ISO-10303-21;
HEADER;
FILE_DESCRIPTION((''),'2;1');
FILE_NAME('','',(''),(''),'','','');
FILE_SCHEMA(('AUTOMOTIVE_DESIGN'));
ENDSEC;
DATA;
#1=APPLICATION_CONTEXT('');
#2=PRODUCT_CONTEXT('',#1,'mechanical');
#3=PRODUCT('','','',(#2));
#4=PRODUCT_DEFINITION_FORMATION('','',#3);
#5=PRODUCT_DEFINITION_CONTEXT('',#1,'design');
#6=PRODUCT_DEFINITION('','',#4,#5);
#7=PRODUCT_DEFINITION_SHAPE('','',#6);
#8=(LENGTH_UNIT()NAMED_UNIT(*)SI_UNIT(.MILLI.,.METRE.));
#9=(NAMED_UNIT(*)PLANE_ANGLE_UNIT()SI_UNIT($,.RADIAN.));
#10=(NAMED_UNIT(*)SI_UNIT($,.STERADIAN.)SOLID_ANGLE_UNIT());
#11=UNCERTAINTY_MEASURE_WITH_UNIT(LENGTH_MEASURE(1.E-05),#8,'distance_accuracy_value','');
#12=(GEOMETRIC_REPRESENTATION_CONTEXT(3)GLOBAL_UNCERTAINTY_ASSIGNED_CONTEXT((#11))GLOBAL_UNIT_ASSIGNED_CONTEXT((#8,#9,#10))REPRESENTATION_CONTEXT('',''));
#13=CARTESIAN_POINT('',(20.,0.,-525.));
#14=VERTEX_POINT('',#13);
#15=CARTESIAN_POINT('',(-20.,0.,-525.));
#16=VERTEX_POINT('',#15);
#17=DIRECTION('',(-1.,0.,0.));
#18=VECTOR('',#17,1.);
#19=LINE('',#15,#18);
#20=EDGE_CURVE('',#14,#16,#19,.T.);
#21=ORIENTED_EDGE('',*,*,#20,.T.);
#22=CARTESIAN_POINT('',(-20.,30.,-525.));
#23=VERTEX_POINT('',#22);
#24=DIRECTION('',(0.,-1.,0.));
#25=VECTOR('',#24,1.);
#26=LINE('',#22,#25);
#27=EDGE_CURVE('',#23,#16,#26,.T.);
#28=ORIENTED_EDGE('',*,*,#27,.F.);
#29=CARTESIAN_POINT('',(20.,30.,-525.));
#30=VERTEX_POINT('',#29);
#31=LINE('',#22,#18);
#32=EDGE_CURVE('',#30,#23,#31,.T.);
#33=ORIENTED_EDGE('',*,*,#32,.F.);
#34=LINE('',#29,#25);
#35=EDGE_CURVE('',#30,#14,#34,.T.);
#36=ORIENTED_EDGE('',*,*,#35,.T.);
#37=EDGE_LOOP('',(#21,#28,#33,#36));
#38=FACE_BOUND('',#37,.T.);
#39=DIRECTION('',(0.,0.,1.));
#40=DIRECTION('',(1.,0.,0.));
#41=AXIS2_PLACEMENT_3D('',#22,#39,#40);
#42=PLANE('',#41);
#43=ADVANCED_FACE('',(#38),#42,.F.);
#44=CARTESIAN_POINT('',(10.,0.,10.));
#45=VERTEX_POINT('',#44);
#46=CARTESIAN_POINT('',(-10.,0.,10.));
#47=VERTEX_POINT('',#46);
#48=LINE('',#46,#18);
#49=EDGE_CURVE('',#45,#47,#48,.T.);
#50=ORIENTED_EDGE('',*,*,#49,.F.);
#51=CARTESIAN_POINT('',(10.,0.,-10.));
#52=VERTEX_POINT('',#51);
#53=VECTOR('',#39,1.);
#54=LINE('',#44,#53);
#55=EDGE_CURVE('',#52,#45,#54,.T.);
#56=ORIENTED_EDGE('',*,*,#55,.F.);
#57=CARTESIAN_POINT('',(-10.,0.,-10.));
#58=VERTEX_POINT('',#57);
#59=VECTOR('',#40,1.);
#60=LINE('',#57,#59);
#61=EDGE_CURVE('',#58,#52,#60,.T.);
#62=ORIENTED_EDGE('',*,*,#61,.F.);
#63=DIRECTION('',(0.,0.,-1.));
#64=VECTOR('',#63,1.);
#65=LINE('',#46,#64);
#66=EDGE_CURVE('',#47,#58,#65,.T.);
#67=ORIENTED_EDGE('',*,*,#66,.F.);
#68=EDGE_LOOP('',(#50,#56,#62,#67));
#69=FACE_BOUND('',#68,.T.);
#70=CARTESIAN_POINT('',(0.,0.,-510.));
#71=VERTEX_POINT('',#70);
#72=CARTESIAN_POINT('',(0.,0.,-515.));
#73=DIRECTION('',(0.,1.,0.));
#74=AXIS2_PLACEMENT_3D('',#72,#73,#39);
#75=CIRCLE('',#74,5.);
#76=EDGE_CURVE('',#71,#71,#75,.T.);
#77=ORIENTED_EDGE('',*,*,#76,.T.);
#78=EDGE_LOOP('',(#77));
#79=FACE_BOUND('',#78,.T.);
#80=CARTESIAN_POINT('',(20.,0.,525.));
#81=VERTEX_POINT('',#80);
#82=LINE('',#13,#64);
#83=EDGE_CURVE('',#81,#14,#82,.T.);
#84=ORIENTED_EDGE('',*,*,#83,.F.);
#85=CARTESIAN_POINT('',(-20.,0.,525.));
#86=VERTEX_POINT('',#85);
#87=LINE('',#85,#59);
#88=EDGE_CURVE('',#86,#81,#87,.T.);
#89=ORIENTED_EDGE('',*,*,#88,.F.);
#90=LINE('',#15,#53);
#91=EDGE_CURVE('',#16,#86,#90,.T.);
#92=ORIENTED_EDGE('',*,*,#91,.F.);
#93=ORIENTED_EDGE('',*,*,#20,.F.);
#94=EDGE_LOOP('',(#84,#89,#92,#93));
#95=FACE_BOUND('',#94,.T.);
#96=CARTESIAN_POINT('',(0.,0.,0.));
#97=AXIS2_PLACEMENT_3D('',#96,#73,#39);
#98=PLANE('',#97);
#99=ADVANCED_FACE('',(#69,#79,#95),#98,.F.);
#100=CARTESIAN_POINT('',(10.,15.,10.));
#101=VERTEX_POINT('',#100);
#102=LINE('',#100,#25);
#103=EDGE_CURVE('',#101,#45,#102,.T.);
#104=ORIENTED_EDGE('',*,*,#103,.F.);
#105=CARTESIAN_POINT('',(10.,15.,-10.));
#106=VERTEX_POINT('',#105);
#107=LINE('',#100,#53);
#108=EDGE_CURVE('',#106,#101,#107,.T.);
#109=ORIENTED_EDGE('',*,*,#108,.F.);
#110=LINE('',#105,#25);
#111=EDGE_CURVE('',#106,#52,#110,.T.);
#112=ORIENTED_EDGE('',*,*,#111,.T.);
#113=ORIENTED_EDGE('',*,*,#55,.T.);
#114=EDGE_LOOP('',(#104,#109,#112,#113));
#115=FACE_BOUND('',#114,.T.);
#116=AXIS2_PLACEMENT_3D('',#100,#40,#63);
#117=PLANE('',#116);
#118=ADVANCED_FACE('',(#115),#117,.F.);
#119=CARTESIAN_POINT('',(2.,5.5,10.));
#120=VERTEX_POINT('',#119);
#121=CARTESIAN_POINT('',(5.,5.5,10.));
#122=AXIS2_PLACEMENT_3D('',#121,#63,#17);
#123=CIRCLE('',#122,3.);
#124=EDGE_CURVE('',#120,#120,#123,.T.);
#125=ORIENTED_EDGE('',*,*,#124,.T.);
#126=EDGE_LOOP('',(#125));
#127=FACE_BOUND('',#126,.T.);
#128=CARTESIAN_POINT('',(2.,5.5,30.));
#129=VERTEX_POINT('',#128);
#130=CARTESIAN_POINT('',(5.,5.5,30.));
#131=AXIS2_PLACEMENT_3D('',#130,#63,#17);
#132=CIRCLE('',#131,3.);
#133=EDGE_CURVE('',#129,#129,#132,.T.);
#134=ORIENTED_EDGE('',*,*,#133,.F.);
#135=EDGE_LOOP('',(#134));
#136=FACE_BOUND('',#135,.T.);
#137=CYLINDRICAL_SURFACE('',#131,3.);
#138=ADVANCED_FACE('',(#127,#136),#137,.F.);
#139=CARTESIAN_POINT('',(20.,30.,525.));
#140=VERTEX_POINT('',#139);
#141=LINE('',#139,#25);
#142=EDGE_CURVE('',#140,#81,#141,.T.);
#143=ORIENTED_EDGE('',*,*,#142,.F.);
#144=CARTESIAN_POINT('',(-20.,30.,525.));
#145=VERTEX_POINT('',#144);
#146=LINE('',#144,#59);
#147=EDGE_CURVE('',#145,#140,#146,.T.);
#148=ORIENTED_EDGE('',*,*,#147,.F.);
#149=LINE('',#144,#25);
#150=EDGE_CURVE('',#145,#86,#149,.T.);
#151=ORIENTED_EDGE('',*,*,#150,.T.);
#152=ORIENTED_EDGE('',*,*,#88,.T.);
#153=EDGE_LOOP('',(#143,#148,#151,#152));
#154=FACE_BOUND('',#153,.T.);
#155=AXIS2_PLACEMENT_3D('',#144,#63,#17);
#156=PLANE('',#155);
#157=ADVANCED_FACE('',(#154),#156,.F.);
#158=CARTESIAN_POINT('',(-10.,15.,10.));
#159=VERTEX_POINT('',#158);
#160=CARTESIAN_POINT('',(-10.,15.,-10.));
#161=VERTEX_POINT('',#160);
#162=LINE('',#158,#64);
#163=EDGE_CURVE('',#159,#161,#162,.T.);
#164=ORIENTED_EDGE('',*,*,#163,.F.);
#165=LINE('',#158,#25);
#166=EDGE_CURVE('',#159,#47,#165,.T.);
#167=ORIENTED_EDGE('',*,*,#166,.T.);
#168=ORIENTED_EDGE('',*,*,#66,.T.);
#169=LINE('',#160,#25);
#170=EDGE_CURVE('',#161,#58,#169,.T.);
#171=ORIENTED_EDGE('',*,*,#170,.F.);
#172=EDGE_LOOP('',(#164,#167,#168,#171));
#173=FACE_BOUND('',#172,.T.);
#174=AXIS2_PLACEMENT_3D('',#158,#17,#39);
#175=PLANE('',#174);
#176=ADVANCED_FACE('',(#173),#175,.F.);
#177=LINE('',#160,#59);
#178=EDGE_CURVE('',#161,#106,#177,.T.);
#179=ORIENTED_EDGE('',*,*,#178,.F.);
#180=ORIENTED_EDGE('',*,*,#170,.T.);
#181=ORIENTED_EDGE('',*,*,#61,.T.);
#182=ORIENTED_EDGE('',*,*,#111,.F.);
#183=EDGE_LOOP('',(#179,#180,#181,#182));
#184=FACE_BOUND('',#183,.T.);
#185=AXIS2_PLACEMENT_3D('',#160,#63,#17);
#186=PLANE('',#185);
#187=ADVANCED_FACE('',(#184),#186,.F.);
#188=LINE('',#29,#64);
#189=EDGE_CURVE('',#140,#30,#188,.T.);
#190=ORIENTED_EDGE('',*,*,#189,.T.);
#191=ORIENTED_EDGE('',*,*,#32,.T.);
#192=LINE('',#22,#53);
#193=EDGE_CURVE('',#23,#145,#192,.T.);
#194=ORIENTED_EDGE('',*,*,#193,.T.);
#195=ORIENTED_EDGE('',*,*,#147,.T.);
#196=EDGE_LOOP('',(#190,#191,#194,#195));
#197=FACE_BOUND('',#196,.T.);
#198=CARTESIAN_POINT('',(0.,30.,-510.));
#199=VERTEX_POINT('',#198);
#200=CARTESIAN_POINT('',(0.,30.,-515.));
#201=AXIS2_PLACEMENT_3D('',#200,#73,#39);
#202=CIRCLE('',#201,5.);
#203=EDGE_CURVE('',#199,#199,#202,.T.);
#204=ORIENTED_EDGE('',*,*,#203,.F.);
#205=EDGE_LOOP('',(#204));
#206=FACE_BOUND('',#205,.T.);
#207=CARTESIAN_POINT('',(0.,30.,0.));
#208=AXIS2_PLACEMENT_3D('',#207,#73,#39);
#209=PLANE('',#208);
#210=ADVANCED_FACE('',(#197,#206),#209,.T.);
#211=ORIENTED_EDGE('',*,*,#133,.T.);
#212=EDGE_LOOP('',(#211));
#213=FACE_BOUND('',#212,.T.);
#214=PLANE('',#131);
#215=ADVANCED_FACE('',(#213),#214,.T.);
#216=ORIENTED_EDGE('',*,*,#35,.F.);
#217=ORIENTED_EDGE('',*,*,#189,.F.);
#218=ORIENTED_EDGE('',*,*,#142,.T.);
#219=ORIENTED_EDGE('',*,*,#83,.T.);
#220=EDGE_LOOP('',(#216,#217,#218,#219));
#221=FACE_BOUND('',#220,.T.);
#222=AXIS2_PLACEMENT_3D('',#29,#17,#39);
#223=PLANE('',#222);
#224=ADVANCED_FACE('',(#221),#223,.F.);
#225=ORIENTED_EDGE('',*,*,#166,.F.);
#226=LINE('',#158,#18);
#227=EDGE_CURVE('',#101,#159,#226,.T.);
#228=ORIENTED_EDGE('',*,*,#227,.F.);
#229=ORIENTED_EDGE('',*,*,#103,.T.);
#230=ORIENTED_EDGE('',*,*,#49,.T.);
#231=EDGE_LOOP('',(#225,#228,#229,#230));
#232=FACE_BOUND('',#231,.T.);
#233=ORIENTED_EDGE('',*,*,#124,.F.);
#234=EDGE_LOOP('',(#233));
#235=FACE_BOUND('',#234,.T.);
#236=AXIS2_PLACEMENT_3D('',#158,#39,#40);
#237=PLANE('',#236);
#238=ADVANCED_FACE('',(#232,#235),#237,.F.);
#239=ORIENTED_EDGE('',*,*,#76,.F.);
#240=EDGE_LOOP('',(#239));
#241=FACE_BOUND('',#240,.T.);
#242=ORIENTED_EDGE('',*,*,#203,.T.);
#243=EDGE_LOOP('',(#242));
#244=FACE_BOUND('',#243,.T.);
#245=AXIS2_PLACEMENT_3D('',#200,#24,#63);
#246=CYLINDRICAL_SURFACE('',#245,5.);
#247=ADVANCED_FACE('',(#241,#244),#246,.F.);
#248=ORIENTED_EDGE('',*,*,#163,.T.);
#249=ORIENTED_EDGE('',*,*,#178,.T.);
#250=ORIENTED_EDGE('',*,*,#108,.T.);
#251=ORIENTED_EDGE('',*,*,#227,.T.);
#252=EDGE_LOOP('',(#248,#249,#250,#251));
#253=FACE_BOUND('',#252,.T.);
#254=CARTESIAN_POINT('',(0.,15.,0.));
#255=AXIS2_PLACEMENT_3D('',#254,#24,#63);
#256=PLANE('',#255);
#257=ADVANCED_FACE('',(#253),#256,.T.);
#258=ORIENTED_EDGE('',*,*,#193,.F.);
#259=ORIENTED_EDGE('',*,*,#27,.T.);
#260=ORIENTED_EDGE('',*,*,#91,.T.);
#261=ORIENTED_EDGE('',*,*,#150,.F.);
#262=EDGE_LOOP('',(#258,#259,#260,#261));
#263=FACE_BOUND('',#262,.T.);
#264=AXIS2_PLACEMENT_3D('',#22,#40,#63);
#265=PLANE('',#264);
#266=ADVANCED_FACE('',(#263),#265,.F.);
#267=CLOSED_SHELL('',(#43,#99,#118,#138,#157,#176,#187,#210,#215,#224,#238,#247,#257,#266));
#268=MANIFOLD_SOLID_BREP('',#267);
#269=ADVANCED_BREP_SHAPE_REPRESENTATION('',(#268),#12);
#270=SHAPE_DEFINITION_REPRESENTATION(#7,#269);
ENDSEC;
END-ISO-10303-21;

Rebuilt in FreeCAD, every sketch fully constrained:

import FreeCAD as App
import Part
import Sketcher
from FreeCAD import Vector

doc = App.newDocument("Part")
body = doc.addObject("PartDesign::Body", "Body")

sketch1 = doc.addObject("Sketcher::SketchObject", "Sketch")
body.addObject(sketch1)
sketch1.AttachmentSupport = (doc.XZ_Plane, [""])
sketch1.MapMode = "FlatFace"
sketch1.addGeometry([
    Part.LineSegment(Vector(-20, -525, 0), Vector(-20, 525, 0)),
    Part.LineSegment(Vector(-20, 525, 0), Vector(20, 525, 0)),
    Part.LineSegment(Vector(20, 525, 0), Vector(20, -525, 0)),
    Part.LineSegment(Vector(20, -525, 0), Vector(-20, -525, 0)),
    Part.Circle(Vector(0, -515, 0), Vector(0, 0, 1), 5),
], False)
sketch1.addConstraint([
    Sketcher.Constraint("Coincident", 0, 2, 1, 1),
    Sketcher.Constraint("Coincident", 1, 2, 2, 1),
    Sketcher.Constraint("Coincident", 2, 2, 3, 1),
    Sketcher.Constraint("Coincident", 3, 2, 0, 1),
    Sketcher.Constraint("Vertical", 0),
    Sketcher.Constraint("Horizontal", 1),
    Sketcher.Constraint("Vertical", 2),
    Sketcher.Constraint("Horizontal", 3),
    Sketcher.Constraint("Symmetric", 0, 2, 2, 2, -1, 1),
    Sketcher.Constraint("PointOnObject", 4, 3, -2),
    Sketcher.Constraint("Diameter", 4, 10.0),
    Sketcher.Constraint("DistanceX", 1, 1, 1, 2, 40.0),
    Sketcher.Constraint("DistanceY", 0, 1, 0, 2, 1050.0),
    Sketcher.Constraint("DistanceY", 4, 3, -1, 1, 515.0),
])
pad1 = doc.addObject("PartDesign::Pad", "Pad")
body.addObject(pad1)
pad1.Profile = sketch1
pad1.Length = 30
pad1.Reversed = True

sketch2 = doc.addObject("Sketcher::SketchObject", "Sketch001")
body.addObject(sketch2)
sketch2.AttachmentSupport = (doc.XZ_Plane, [""])
sketch2.MapMode = "FlatFace"
sketch2.addGeometry([
    Part.LineSegment(Vector(-10, 10, 0), Vector(-10, -10, 0)),
    Part.LineSegment(Vector(-10, -10, 0), Vector(10, -10, 0)),
    Part.LineSegment(Vector(10, -10, 0), Vector(10, 10, 0)),
    Part.LineSegment(Vector(10, 10, 0), Vector(-10, 10, 0)),
], False)
sketch2.addConstraint([
    Sketcher.Constraint("Coincident", 0, 2, 1, 1),
    Sketcher.Constraint("Coincident", 1, 2, 2, 1),
    Sketcher.Constraint("Coincident", 2, 2, 3, 1),
    Sketcher.Constraint("Coincident", 3, 2, 0, 1),
    Sketcher.Constraint("Vertical", 0),
    Sketcher.Constraint("Horizontal", 1),
    Sketcher.Constraint("Vertical", 2),
    Sketcher.Constraint("Horizontal", 3),
    Sketcher.Constraint("Symmetric", 0, 2, 2, 2, -1, 1),
    Sketcher.Constraint("Equal", 3, 0),
    Sketcher.Constraint("DistanceX", 1, 1, 1, 2, 20.0),
])
pocket1 = doc.addObject("PartDesign::Pocket", "Pocket")
body.addObject(pocket1)
pocket1.Profile = sketch2
pocket1.Length = 15

sketch3 = doc.addObject("Sketcher::SketchObject", "Sketch002")
body.addObject(sketch3)
sketch3.AttachmentSupport = (doc.XY_Plane, [""])
sketch3.MapMode = "FlatFace"
sketch3.AttachmentOffset = App.Placement(Vector(0, 0, 10), App.Rotation())
sketch3.addGeometry(Part.Circle(Vector(5, 5.5, 0), Vector(0, 0, 1), 3), False)
sketch3.addConstraint([
    Sketcher.Constraint("Diameter", 0, 6.0),
    Sketcher.Constraint("DistanceX", -1, 1, 0, 3, 5.0),
    Sketcher.Constraint("DistanceY", -1, 1, 0, 3, 5.5),
])
pocket2 = doc.addObject("PartDesign::Pocket", "Pocket001")
body.addObject(pocket2)
pocket2.Profile = sketch3
pocket2.Length = 20
pocket2.Reversed = True

doc.recompute()
